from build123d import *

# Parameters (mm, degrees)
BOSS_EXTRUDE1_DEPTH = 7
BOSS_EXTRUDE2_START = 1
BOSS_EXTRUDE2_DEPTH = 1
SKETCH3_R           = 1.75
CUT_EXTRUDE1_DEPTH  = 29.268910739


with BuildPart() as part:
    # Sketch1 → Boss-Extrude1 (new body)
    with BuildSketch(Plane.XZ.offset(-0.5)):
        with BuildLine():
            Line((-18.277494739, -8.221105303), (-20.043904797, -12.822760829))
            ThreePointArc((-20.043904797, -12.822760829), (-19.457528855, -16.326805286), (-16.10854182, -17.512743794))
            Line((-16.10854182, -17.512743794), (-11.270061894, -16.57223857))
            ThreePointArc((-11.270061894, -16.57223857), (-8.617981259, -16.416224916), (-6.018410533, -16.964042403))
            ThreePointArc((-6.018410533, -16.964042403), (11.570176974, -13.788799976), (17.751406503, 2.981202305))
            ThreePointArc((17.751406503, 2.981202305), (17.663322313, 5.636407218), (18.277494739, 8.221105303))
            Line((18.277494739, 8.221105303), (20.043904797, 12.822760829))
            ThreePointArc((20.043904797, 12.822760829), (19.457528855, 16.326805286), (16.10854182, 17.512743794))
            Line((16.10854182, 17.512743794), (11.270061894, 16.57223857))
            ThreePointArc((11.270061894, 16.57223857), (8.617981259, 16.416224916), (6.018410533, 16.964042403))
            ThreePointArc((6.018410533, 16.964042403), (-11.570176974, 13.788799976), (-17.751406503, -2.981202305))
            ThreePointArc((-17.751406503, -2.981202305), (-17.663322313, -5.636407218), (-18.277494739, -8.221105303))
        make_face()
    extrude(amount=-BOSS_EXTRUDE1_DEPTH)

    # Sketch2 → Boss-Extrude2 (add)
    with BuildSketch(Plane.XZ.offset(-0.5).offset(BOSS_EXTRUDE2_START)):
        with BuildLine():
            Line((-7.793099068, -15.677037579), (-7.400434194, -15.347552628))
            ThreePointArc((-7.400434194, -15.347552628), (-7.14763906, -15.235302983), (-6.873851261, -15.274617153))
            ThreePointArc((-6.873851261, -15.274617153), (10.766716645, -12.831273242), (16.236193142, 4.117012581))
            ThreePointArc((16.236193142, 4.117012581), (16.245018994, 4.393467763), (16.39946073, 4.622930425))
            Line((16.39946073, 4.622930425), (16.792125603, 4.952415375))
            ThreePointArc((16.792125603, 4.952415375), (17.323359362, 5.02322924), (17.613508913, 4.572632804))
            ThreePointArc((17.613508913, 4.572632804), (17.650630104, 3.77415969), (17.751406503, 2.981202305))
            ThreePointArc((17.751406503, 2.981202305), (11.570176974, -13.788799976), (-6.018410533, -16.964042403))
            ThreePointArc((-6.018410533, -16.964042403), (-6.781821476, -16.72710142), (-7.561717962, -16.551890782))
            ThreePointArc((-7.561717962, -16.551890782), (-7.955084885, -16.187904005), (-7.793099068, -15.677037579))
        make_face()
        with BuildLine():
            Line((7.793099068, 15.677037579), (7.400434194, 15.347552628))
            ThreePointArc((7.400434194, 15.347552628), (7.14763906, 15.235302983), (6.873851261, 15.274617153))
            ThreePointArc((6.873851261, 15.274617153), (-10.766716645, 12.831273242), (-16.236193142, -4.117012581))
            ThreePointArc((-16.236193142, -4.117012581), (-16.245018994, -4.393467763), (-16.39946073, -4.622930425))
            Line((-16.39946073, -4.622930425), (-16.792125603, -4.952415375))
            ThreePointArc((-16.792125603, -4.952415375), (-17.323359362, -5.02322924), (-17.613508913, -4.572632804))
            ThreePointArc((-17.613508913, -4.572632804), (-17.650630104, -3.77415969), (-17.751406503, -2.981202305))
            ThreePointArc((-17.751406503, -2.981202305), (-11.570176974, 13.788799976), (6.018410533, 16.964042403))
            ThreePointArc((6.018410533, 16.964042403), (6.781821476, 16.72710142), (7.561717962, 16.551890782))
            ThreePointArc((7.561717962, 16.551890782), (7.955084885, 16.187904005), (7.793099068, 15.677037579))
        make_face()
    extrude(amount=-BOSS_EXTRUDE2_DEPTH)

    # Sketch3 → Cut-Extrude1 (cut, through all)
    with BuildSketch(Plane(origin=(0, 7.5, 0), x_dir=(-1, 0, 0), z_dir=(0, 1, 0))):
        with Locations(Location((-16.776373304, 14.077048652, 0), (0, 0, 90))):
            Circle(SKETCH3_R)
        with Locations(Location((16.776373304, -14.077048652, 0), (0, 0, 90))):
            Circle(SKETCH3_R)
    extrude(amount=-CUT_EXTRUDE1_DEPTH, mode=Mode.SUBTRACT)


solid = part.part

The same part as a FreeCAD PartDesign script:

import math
import FreeCAD as App
import Part
import Sketcher

V = App.Vector
Q = App.Units.Quantity

doc = App.newDocument("Part")
body = doc.addObject("PartDesign::Body", "Body")

# Sketch on XZ plane
sketch1 = body.newObject("Sketcher::SketchObject", "Sketch")
sketch1.AttachmentSupport = (doc.getObject("XZ_Plane"), [""])
sketch1.MapMode = "FlatFace"
sketch1.AttachmentOffset = App.Placement(V(0, 0, -0.5), App.Rotation())
sketch1.addGeometry(Part.LineSegment(V(-18.3, -8.2, 0), V(-20, -12.8, 0)), False)
sketch1.addGeometry(Part.ArcOfCircle(Part.Circle(V(-16.8, -14.1, 0), V(0, 0, 1), 3.5), math.radians(159), math.radians(281)), False)
sketch1.addGeometry(Part.LineSegment(V(-16.1, -17.5, 0), V(-11.3, -16.6, 0)), False)
sketch1.addGeometry(Part.ArcOfCircle(Part.Circle(V(-9.4, -26.4, 0), V(0, 0, 1), 10), math.radians(70), math.radians(101)), False)
sketch1.addGeometry(Part.ArcOfCircle(Part.Circle(V(0, 0, 0), V(0, 0, 1), 18), math.radians(-110), math.radians(10)), False)
sketch1.addGeometry(Part.ArcOfCircle(Part.Circle(V(27.6, 4.6, 0), V(0, 0, 1), 10), math.radians(159), math.radians(190)), False)
sketch1.addGeometry(Part.LineSegment(V(18.3, 8.2, 0), V(20, 12.8, 0)), False)
sketch1.addGeometry(Part.ArcOfCircle(Part.Circle(V(16.8, 14.1, 0), V(0, 0, 1), 3.5), math.radians(-21), math.radians(101)), False)
sketch1.addGeometry(Part.LineSegment(V(16.1, 17.5, 0), V(11.3, 16.6, 0)), False)
sketch1.addGeometry(Part.ArcOfCircle(Part.Circle(V(9.4, 26.4, 0), V(0, 0, 1), 10), math.radians(-110), math.radians(-79)), False)
sketch1.addGeometry(Part.ArcOfCircle(Part.Circle(V(0, 0, 0), V(0, 0, 1), 18), math.radians(70), math.radians(190)), False)
sketch1.addGeometry(Part.ArcOfCircle(Part.Circle(V(-27.6, -4.6, 0), V(0, 0, 1), 10), math.radians(-21), math.radians(10)), False)
sketch1.addConstraint(Sketcher.Constraint("Tangent", 0, 2, 1, 1))
sketch1.addConstraint(Sketcher.Constraint("Tangent", 1, 2, 2, 1))
sketch1.addConstraint(Sketcher.Constraint("Tangent", 2, 2, 3, 2))
sketch1.addConstraint(Sketcher.Constraint("Tangent", 3, 1, 4, 1))
sketch1.addConstraint(Sketcher.Constraint("Tangent", 4, 2, 5, 2))
sketch1.addConstraint(Sketcher.Constraint("Tangent", 5, 1, 6, 1))
sketch1.addConstraint(Sketcher.Constraint("Tangent", 6, 2, 7, 1))
sketch1.addConstraint(Sketcher.Constraint("Tangent", 7, 2, 8, 1))
sketch1.addConstraint(Sketcher.Constraint("Tangent", 8, 2, 9, 2))
sketch1.addConstraint(Sketcher.Constraint("Tangent", 9, 1, 10, 1))
sketch1.addConstraint(Sketcher.Constraint("Tangent", 10, 2, 11, 2))
sketch1.addConstraint(Sketcher.Constraint("Tangent", 11, 1, 0, 1))
sketch1.addConstraint(Sketcher.Constraint("Coincident", 4, 3, -1, 1))
sketch1.addConstraint(Sketcher.Constraint("Coincident", 10, 3, -1, 1))
sketch1.addConstraint(Sketcher.Constraint("Equal", 3, 5))
sketch1.addConstraint(Sketcher.Constraint("Equal", 1, 7))
sketch1.addConstraint(Sketcher.Constraint("Equal", 5, 9))
sketch1.addConstraint(Sketcher.Constraint("Equal", 4, 10))
sketch1.addConstraint(Sketcher.Constraint("Equal", 9, 11))
sketch1.addConstraint(Sketcher.Constraint("Symmetric", 1, 3, 7, 3, -1, 1))
sketch1.addConstraint(Sketcher.Constraint("Parallel", 0, 6))
sketch1.addConstraint(Sketcher.Constraint("Parallel", 2, 8))
sketch1.addConstraint(Sketcher.Constraint("Equal", 0, 2))
sketch1.addConstraint(Sketcher.Constraint("Radius", 3, Q("10 mm")))
sketch1.addConstraint(Sketcher.Constraint("Radius", 4, Q("18 mm")))
sketch1.addConstraint(Sketcher.Constraint("Radius", 1, Q("3.5 mm")))
sketch1.addConstraint(Sketcher.Constraint("Angle", 0, Q("-111 deg")))
sketch1.addConstraint(Sketcher.Constraint("Angle", 2, Q("11 deg")))
sketch1.addConstraint(Sketcher.Constraint("DistanceX", -1, 1, 5, 3, Q("27.613299 mm")))
pad1 = body.newObject("PartDesign::Pad", "Pad")
pad1.Profile = sketch1
pad1.Length = 7
pad1.Reversed = True

# Sketch on XZ plane
sketch2 = body.newObject("Sketcher::SketchObject", "Sketch001")
sketch2.AttachmentSupport = (doc.getObject("XZ_Plane"), [""])
sketch2.MapMode = "FlatFace"
sketch2.AttachmentOffset = App.Placement(V(0, 0, 0.5), App.Rotation())
sketch2.addGeometry(Part.LineSegment(V(-7.4, -15.35, 0), V(-7.79, -15.68, 0)), False)
sketch2.addGeometry(Part.ArcOfCircle(Part.Circle(V(-7.47, -16.06, 0), V(0, 0, 1), 0.5), math.radians(130), math.radians(260)), False)
sketch2.addGeometry(Part.ArcOfCircle(Part.Circle(V(-9.36, -26.39, 0), V(0, 0, 1), 10), math.radians(70.47), math.radians(79.63)), False)
sketch2.addGeometry(Part.ArcOfCircle(Part.Circle(V(0, 0, 0), V(0, 0, 1), 18), math.radians(-110), math.radians(10)), False)
sketch2.addGeometry(Part.ArcOfCircle(Part.Circle(V(27.61, 4.64, 0), V(0, 0, 1), 10), math.radians(-179.63), math.radians(-170.47)), False)
sketch2.addGeometry(Part.ArcOfCircle(Part.Circle(V(17.11, 4.57, 0), V(0, 0, 1), 0.5), math.radians(0), math.radians(130)), False)
sketch2.addGeometry(Part.LineSegment(V(16.79, 4.95, 0), V(16.4, 4.62, 0)), False)
sketch2.addGeometry(Part.ArcOfCircle(Part.Circle(V(16.72, 4.24, 0), V(0, 0, 1), 0.5), math.radians(130), math.radians(194)), False)
sketch2.addGeometry(Part.ArcOfCircle(Part.Circle(V(0, 0, 0), V(0, 0, 1), 16.75), math.radians(-114), math.radians(14)), False)
sketch2.addGeometry(Part.ArcOfCircle(Part.Circle(V(-7.08, -15.73, 0), V(0, 0, 1), 0.5), math.radians(66), math.radians(130)), False)
sketch2.addGeometry(Part.LineSegment(V(7.4, 15.35, 0), V(7.79, 15.68, 0)), False)
sketch2.addGeometry(Part.ArcOfCircle(Part.Circle(V(7.47, 16.06, 0), V(0, 0, 1), 0.5), math.radians(-50), math.radians(80)), False)
sketch2.addGeometry(Part.ArcOfCircle(Part.Circle(V(9.36, 26.39, 0), V(0, 0, 1), 10), math.radians(-109.53), math.radians(-100.37)), False)
sketch2.addGeometry(Part.ArcOfCircle(Part.Circle(V(0, 0, 0), V(0, 0, 1), 18), math.radians(70), math.radians(190)), False)
sketch2.addGeometry(Part.ArcOfCircle(Part.Circle(V(-27.61, -4.64, 0), V(0, 0, 1), 10), math.radians(0.37), math.radians(9.53)), False)
sketch2.addGeometry(Part.ArcOfCircle(Part.Circle(V(-17.11, -4.57, 0), V(0, 0, 1), 0.5), math.radians(-180), math.radians(-50)), False)
sketch2.addGeometry(Part.LineSegment(V(-16.79, -4.95, 0), V(-16.4, -4.62, 0)), False)
sketch2.addGeometry(Part.ArcOfCircle(Part.Circle(V(-16.72, -4.24, 0), V(0, 0, 1), 0.5), math.radians(-50), math.radians(14)), False)
sketch2.addGeometry(Part.ArcOfCircle(Part.Circle(V(0, 0, 0), V(0, 0, 1), 16.75), math.radians(66), math.radians(194)), False)
sketch2.addGeometry(Part.ArcOfCircle(Part.Circle(V(7.08, 15.73, 0), V(0, 0, 1), 0.5), math.radians(-114), math.radians(-50)), False)
sketch2.addConstraint(Sketcher.Constraint("Tangent", 0, 2, 1, 1))
sketch2.addConstraint(Sketcher.Constraint("Tangent", 1, 2, 2, 2))
sketch2.addConstraint(Sketcher.Constraint("Tangent", 2, 1, 3, 1))
sketch2.addConstraint(Sketcher.Constraint("Tangent", 3, 2, 4, 2))
sketch2.addConstraint(Sketcher.Constraint("Tangent", 4, 1, 5, 1))
sketch2.addConstraint(Sketcher.Constraint("Tangent", 5, 2, 6, 1))
sketch2.addConstraint(Sketcher.Constraint("Tangent", 6, 2, 7, 1))
sketch2.addConstraint(Sketcher.Constraint("Tangent", 7, 2, 8, 2))
sketch2.addConstraint(Sketcher.Constraint("Tangent", 8, 1, 9, 1))
sketch2.addConstraint(Sketcher.Constraint("Tangent", 9, 2, 0, 1))
sketch2.addConstraint(Sketcher.Constraint("Tangent", 10, 2, 11, 1))
sketch2.addConstraint(Sketcher.Constraint("Tangent", 11, 2, 12, 2))
sketch2.addConstraint(Sketcher.Constraint("Tangent", 12, 1, 13, 1))
sketch2.addConstraint(Sketcher.Constraint("Tangent", 13, 2, 14, 2))
sketch2.addConstraint(Sketcher.Constraint("Tangent", 14, 1, 15, 1))
sketch2.addConstraint(Sketcher.Constraint("Tangent", 15, 2, 16, 1))
sketch2.addConstraint(Sketcher.Constraint("Tangent", 16, 2, 17, 1))
sketch2.addConstraint(Sketcher.Constraint("Tangent", 17, 2, 18, 2))
sketch2.addConstraint(Sketcher.Constraint("Tangent", 18, 1, 19, 1))
sketch2.addConstraint(Sketcher.Constraint("Tangent", 19, 2, 10, 1))
sketch2.addConstraint(Sketcher.Constraint("Coincident", 3, 3, -1, 1))
sketch2.addConstraint(Sketcher.Constraint("Coincident", 8, 3, -1, 1))
sketch2.addConstraint(Sketcher.Constraint("Coincident", 13, 3, -1, 1))
sketch2.addConstraint(Sketcher.Constraint("Coincident", 18, 3, -1, 1))
sketch2.addConstraint(Sketcher.Constraint("Equal", 2, 4))
sketch2.addConstraint(Sketcher.Constraint("Equal", 1, 5))
sketch2.addConstraint(Sketcher.Constraint("Equal", 5, 7))
sketch2.addConstraint(Sketcher.Constraint("Equal", 7, 9))
sketch2.addConstraint(Sketcher.Constraint("Equal", 9, 11))
sketch2.addConstraint(Sketcher.Constraint("Equal", 4, 12))
sketch2.addConstraint(Sketcher.Constraint("Equal", 3, 13))
sketch2.addConstraint(Sketcher.Constraint("Equal", 12, 14))
sketch2.addConstraint(Sketcher.Constraint("Equal", 11, 15))
sketch2.addConstraint(Sketcher.Constraint("Equal", 15, 17))
sketch2.addConstraint(Sketcher.Constraint("Equal", 8, 18))
sketch2.addConstraint(Sketcher.Constraint("Equal", 17, 19))
sketch2.addConstraint(Sketcher.Constraint("Symmetric", 1, 3, 11, 3, -1, 1))
sketch2.addConstraint(Sketcher.Constraint("Symmetric", 5, 3, 15, 3, -1, 1))
sketch2.addConstraint(Sketcher.Constraint("Parallel", 0, 6))
sketch2.addConstraint(Sketcher.Constraint("Parallel", 6, 10))
sketch2.addConstraint(Sketcher.Constraint("Parallel", 10, 16))
sketch2.addConstraint(Sketcher.Constraint("Equal", 0, 6))
sketch2.addConstraint(Sketcher.Constraint("Radius", 2, Q("10 mm")))
sketch2.addConstraint(Sketcher.Constraint("Radius", 3, Q("18 mm")))
sketch2.addConstraint(Sketcher.Constraint("Radius", 1, Q("0.5 mm")))
sketch2.addConstraint(Sketcher.Constraint("Angle", 0, Q("-140 deg")))
sketch2.addConstraint(Sketcher.Constraint("Radius", 8, Q("16.750038 mm")))
sketch2.addConstraint(Sketcher.Constraint("DistanceX", -1, 1, 4, 3, Q("27.613299 mm")))
sketch2.addConstraint(Sketcher.Constraint("DistanceX", 0, 2, -1, 1, Q("7.793099 mm")))
sketch2.addConstraint(Sketcher.Constraint("DistanceX", 15, 3, 1, 2, Q("9.551801 mm")))
pad2 = body.newObject("PartDesign::Pad", "Pad001")
pad2.Profile = sketch2
pad2.Length = 1
pad2.Reversed = True

# Sketch on XZ plane
sketch3 = body.newObject("Sketcher::SketchObject", "Sketch002")
sketch3.AttachmentSupport = (doc.getObject("XZ_Plane"), [""])
sketch3.MapMode = "FlatFace"
sketch3.AttachmentOffset = App.Placement(V(0, 0, -7.5), App.Rotation())
sketch3.addGeometry(Part.Circle(V(16.8, 14.1, 0), V(0, 0, 1), 1.8), False)
sketch3.addGeometry(Part.Circle(V(-16.8, -14.1, 0), V(0, 0, 1), 1.8), False)
sketch3.addConstraint(Sketcher.Constraint("Equal", 0, 1))
sketch3.addConstraint(Sketcher.Constraint("Symmetric", 0, 3, 1, 3, -1, 1))
sketch3.addConstraint(Sketcher.Constraint("Diameter", 0, Q("3.5 mm")))
sketch3.addConstraint(Sketcher.Constraint("DistanceY", -1, 1, 0, 3, Q("14.077049 mm")))
sketch3.addConstraint(Sketcher.Constraint("DistanceX", -1, 1, 0, 3, Q("16.776373 mm")))
pocket1 = body.newObject("PartDesign::Pocket", "Pocket")
pocket1.Profile = sketch3
pocket1.Type = "ThroughAll"
pocket1.Reversed = True

doc.recompute()
